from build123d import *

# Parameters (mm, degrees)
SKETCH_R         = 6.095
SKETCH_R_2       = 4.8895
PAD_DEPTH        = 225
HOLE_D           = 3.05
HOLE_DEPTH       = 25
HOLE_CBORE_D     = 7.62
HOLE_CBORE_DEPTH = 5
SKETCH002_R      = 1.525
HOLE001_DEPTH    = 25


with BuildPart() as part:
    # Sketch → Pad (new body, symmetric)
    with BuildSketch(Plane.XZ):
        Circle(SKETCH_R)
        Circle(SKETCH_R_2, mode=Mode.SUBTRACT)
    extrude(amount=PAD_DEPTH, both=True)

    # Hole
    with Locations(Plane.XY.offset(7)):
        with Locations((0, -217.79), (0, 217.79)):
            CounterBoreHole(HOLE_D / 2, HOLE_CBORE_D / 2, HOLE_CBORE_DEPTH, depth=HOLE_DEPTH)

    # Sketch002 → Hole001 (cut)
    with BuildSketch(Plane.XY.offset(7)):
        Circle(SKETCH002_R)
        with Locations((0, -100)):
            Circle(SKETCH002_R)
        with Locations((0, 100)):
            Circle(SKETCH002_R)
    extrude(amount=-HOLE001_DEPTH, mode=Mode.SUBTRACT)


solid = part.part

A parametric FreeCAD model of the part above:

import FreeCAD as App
import Part
import Sketcher
from FreeCAD import Vector
Q = App.Units.Quantity

doc = App.newDocument("Part")
body = doc.addObject("PartDesign::Body", "Body")

sketch1 = doc.addObject("Sketcher::SketchObject", "Sketch")
body.addObject(sketch1)
sketch1.AttachmentSupport = (doc.XZ_Plane, [""])
sketch1.MapMode = "FlatFace"
sketch1.addGeometry(Part.Circle(Vector(0, 0, 0), Vector(0, 0, 1), 6.1), False)
sketch1.addGeometry(Part.Circle(Vector(0, 0, 0), Vector(0, 0, 1), 4.9), False)
sketch1.addConstraint(Sketcher.Constraint("Coincident", 0, 3, -1, 1))
sketch1.addConstraint(Sketcher.Constraint("Coincident", 1, 3, -1, 1))
sketch1.addConstraint(Sketcher.Constraint("Diameter", 0, Q("12.19 mm")))
sketch1.addConstraint(Sketcher.Constraint("Diameter", 1, Q("9.779 mm")))
pad1 = doc.addObject("PartDesign::Pad", "Pad")
body.addObject(pad1)
pad1.Profile = sketch1
pad1.Length = 450
pad1.Midplane = True

sketch2 = doc.addObject("Sketcher::SketchObject", "Sketch001")
body.addObject(sketch2)
sketch2.AttachmentSupport = (doc.XY_Plane, [""])
sketch2.MapMode = "FlatFace"
sketch2.AttachmentOffset = App.Placement(Vector(0, 0, 7), App.Rotation())
sketch2.addGeometry(Part.Circle(Vector(0, -217.8, 0), Vector(0, 0, 1), 1.5), False)
sketch2.addGeometry(Part.Circle(Vector(0, 217.8, 0), Vector(0, 0, 1), 1.5), False)
sketch2.addConstraint(Sketcher.Constraint("Equal", 0, 1))
sketch2.addConstraint(Sketcher.Constraint("Symmetric", 0, 3, 1, 3, -1, 1))
sketch2.addConstraint(Sketcher.Constraint("PointOnObject", 0, 3, -2))
sketch2.addConstraint(Sketcher.Constraint("Diameter", 0, Q("3.05 mm")))
sketch2.addConstraint(Sketcher.Constraint("DistanceY", 0, 3, -1, 1, Q("217.79 mm")))
doc.recompute()
hole = doc.addObject("PartDesign::Hole", "Hole")
body.addObject(hole)
hole.Profile = sketch2
hole.ThreadType = "None"
hole.Diameter = 3.05
hole.DepthType = "Dimension"
hole.Depth = 25
hole.DrillPoint = "Flat"
hole.HoleCutType = "Counterbore"
hole.HoleCutDiameter = 7.62
hole.HoleCutDepth = 5

sketch3 = doc.addObject("Sketcher::SketchObject", "Sketch002")
body.addObject(sketch3)
sketch3.AttachmentSupport = (doc.XY_Plane, [""])
sketch3.MapMode = "FlatFace"
sketch3.AttachmentOffset = App.Placement(Vector(0, 0, 7), App.Rotation())
sketch3.addGeometry(Part.Circle(Vector(0, 0, 0), Vector(0, 0, 1), 1.5), False)
sketch3.addGeometry(Part.Circle(Vector(0, -100, 0), Vector(0, 0, 1), 1.5), False)
sketch3.addGeometry(Part.Circle(Vector(0, 100, 0), Vector(0, 0, 1), 1.5), False)
sketch3.addConstraint(Sketcher.Constraint("Coincident", 0, 3, -1, 1))
sketch3.addConstraint(Sketcher.Constraint("Equal", 0, 1))
sketch3.addConstraint(Sketcher.Constraint("Equal", 1, 2))
sketch3.addConstraint(Sketcher.Constraint("Symmetric", 1, 3, 2, 3, -1, 1))
sketch3.addConstraint(Sketcher.Constraint("PointOnObject", 1, 3, -2))
sketch3.addConstraint(Sketcher.Constraint("Diameter", 0, Q("3.05 mm")))
sketch3.addConstraint(Sketcher.Constraint("DistanceY", 1, 3, -1, 1, Q("100 mm")))
pocket1 = doc.addObject("PartDesign::Pocket", "Pocket")
body.addObject(pocket1)
pocket1.Profile = sketch3
pocket1.Length = 25

doc.recompute()
